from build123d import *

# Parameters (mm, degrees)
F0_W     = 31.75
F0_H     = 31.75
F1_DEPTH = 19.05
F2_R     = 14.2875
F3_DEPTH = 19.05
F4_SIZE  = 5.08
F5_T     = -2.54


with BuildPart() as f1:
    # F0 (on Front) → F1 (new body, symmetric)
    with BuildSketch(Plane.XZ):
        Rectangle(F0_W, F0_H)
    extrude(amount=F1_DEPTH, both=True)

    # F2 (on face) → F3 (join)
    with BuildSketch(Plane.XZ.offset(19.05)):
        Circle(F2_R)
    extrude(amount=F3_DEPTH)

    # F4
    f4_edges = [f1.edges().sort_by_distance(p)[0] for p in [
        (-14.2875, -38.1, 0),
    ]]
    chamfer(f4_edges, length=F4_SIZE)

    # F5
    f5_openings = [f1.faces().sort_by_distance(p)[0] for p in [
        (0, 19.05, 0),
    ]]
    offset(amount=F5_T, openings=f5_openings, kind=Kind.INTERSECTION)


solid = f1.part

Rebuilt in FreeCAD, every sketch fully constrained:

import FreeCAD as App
import Part
import Sketcher
Q = App.Units.Quantity


def edges_at(feature, points):
    """Names of the edges that pass closest to the given points."""
    edges = feature.Shape.Edges
    near = lambda p: min(range(len(edges)), key=lambda i: edges[i].distToShape(Part.Vertex(*p))[0])
    return sorted({f"Edge{near(p) + 1}" for p in points})


def faces_at(feature, points):
    """Names of the faces that lie closest to the given points."""
    faces = feature.Shape.Faces
    near = lambda p: min(range(len(faces)), key=lambda i: faces[i].distToShape(Part.Vertex(*p))[0])
    return sorted({f"Face{near(p) + 1}" for p in points})


def add_polygon(sketch, points):
    """Adds a closed chain of lines whose ends are joined by coincident constraints."""
    first, n = sketch.GeometryCount, len(points)
    for a, b in zip(points, points[1:] + points[:1]):
        sketch.addGeometry(Part.LineSegment(App.Vector(*a, 0), App.Vector(*b, 0)), False)
    for i in range(n):
        sketch.addConstraint(Sketcher.Constraint("Coincident", first + i, 2, first + (i + 1) % n, 1))

doc = App.newDocument("Part")
params = doc.addObject("Spreadsheet::Sheet", "Params")
for row, (alias, value) in enumerate([
    ("sketch1_width", "1.25 in"),
    ("pad1_length", "1.5 in"),
    ("sketch2_diameter", "1.125 in"),
    ("pad2_length", "0.75 in"),
    ("chamfer_size", "0.2 in"),
    ("thickness_wall", "0.1 in"),
], start=1):
    params.set(f"A{row}", alias)
    params.set(f"B{row}", "=" + value)
    params.setAlias(f"B{row}", alias)

body = doc.addObject("PartDesign::Body", "Body")

sketch1 = body.newObject("Sketcher::SketchObject", "Sketch")
sketch1.AttachmentSupport = (doc.getObject("XZ_Plane"), [""])
sketch1.MapMode = "FlatFace"
add_polygon(sketch1, [(-15.875, 15.875), (-15.875, -15.875), (15.875, -15.875), (15.875, 15.875)])
sketch1.addConstraint([
    Sketcher.Constraint("Vertical", 0),
    Sketcher.Constraint("Horizontal", 1),
    Sketcher.Constraint("Vertical", 2),
    Sketcher.Constraint("Horizontal", 3),
    Sketcher.Constraint("Symmetric", 0, 2, 2, 2, -1, 1),
    Sketcher.Constraint("Equal", 3, 0),
    Sketcher.Constraint("DistanceX", 1, 1, 1, 2, Q("1.25 in")),
])
sketch1.setExpression("Constraints[10]", "Params.sketch1_width")
pad1 = body.newObject("PartDesign::Pad", "Pad")
pad1.Profile = sketch1
pad1.setExpression("Length", "Params.pad1_length")
pad1.Midplane = True

sketch2 = body.newObject("Sketcher::SketchObject", "Sketch001")
sketch2.AttachmentSupport = (doc.getObject("XZ_Plane"), [""])
sketch2.MapMode = "FlatFace"
sketch2.AttachmentOffset = App.Placement(App.Vector(0, 0, 0.75 * 25.4), App.Rotation())
sketch2.addGeometry(Part.Circle(App.Vector(0, 0, 0), App.Vector(0, 0, 1), 14.2875), False)
sketch2.addConstraint([
    Sketcher.Constraint("Coincident", 0, 3, -1, 1),
    Sketcher.Constraint("Diameter", 0, Q("1.125 in")),
])
sketch2.setExpression("Constraints[1]", "Params.sketch2_diameter")
pad2 = body.newObject("PartDesign::Pad", "Pad001")
pad2.Profile = sketch2
pad2.setExpression("Length", "Params.pad2_length")
doc.recompute()

chamfer = body.newObject("PartDesign::Chamfer", "Chamfer")
chamfer.Base = (pad2, edges_at(pad2, [(-14.287, -38.1, 0)]))
chamfer.setExpression("Size", "Params.chamfer_size")
doc.recompute()

thickness = body.newObject("PartDesign::Thickness", "Thickness")
thickness.Base = (chamfer, faces_at(chamfer, [(0, 19.05, 0)]))
thickness.setExpression("Value", "Params.thickness_wall")
thickness.Reversed = True
thickness.Join = "Intersection"

doc.recompute()
